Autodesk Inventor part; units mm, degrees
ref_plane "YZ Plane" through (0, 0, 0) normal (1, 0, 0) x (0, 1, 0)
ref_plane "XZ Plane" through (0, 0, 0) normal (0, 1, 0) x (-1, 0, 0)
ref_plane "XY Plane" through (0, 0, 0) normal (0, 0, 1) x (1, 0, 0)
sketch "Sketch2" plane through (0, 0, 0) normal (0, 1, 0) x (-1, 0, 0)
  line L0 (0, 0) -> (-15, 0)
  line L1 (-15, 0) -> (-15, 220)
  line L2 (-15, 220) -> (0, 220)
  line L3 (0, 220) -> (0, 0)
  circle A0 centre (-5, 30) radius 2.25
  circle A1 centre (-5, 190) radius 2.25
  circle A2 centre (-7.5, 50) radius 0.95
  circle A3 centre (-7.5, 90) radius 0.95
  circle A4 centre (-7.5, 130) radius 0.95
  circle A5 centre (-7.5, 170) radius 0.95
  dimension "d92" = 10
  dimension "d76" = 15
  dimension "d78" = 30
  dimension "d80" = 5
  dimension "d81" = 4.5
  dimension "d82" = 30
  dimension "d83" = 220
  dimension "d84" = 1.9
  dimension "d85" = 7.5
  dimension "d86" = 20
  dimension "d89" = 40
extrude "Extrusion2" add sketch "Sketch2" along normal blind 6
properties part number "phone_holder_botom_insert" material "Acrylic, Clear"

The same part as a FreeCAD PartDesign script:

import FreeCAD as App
import Part
import Sketcher

doc = App.newDocument("Part")
params = doc.addObject("Spreadsheet::Sheet", "Params")
for row, (alias, value) in enumerate([
    ("sketch1_diameter", "1.9 mm"),
    ("sketch1_diameter2", "4.5 mm"),
    ("sketch1_width", "15 mm"),
    ("sketch1_height", "220 mm"),
    ("pad1_length", "6 mm"),
], start=1):
    params.set(f"A{row}", alias)
    params.set(f"B{row}", "=" + value)
    params.setAlias(f"B{row}", alias)

body = doc.addObject("PartDesign::Body", "Body")

sketch1 = body.newObject("Sketcher::SketchObject", "Sketch")
sketch1.AttachmentSupport = (doc.getObject("XZ_Plane"), [""])
sketch1.MapMode = "FlatFace"
sketch1.addGeometry([
    Part.LineSegment(App.Vector(15, 0, 0), App.Vector(0, 0, 0)),
    Part.LineSegment(App.Vector(0, 0, 0), App.Vector(0, 220, 0)),
    Part.LineSegment(App.Vector(0, 220, 0), App.Vector(15, 220, 0)),
    Part.LineSegment(App.Vector(15, 220, 0), App.Vector(15, 0, 0)),
    Part.Circle(App.Vector(7.5, 50, 0), App.Vector(0, 0, 1), 0.9),
    Part.Circle(App.Vector(5, 30, 0), App.Vector(0, 0, 1), 2.2),
    Part.Circle(App.Vector(7.5, 90, 0), App.Vector(0, 0, 1), 0.9),
    Part.Circle(App.Vector(7.5, 130, 0), App.Vector(0, 0, 1), 0.9),
    Part.Circle(App.Vector(7.5, 170, 0), App.Vector(0, 0, 1), 0.9),
    Part.Circle(App.Vector(5, 190, 0), App.Vector(0, 0, 1), 2.2),
], False)
sketch1.addConstraint([
    Sketcher.Constraint("Coincident", 0, 2, 1, 1),
    Sketcher.Constraint("Coincident", 1, 2, 2, 1),
    Sketcher.Constraint("Coincident", 2, 2, 3, 1),
    Sketcher.Constraint("Coincident", 3, 2, 0, 1),
    Sketcher.Constraint("Horizontal", 0),
    Sketcher.Constraint("Vertical", 1),
    Sketcher.Constraint("Horizontal", 2),
    Sketcher.Constraint("Vertical", 3),
    Sketcher.Constraint("Coincident", 0, 2, -1, 1),
    Sketcher.Constraint("Equal", 4, 6),
    Sketcher.Constraint("Equal", 6, 7),
    Sketcher.Constraint("Equal", 7, 8),
    Sketcher.Constraint("Equal", 5, 9),
    Sketcher.Constraint("Vertical", 4, 3, 6, 3),
    Sketcher.Constraint("Vertical", 6, 3, 7, 3),
    Sketcher.Constraint("Vertical", 7, 3, 8, 3),
    Sketcher.Constraint("Vertical", 5, 3, 9, 3),
    Sketcher.Constraint("Diameter", 4, 1.9),
    Sketcher.Constraint("Diameter", 5, 4.5),
    Sketcher.Constraint("DistanceX", 0, 2, 0, 1, 15.0),
    Sketcher.Constraint("DistanceY", 1, 1, 1, 2, 220.0),
    Sketcher.Constraint("DistanceX", -1, 1, 5, 3, 5.0),
    Sketcher.Constraint("DistanceY", -1, 1, 5, 3, 30.0),
    Sketcher.Constraint("DistanceY", 5, 3, 4, 3, 20.0),
    Sketcher.Constraint("DistanceY", 4, 3, 6, 3, 40.0),
    Sketcher.Constraint("DistanceY", 6, 3, 7, 3, 40.0),
    Sketcher.Constraint("DistanceY", 7, 3, 8, 3, 40.0),
    Sketcher.Constraint("DistanceY", 8, 3, 9, 3, 20.0),
    Sketcher.Constraint("DistanceX", -1, 1, 4, 3, 7.5),
])
sketch1.setExpression("Constraints[17]", "Params.sketch1_diameter")
sketch1.setExpression("Constraints[18]", "Params.sketch1_diameter2")
sketch1.setExpression("Constraints[19]", "Params.sketch1_width")
sketch1.setExpression("Constraints[20]", "Params.sketch1_height")
pad1 = body.newObject("PartDesign::Pad", "Pad")
pad1.Profile = sketch1
pad1.setExpression("Length", "Params.pad1_length")
pad1.Reversed = True

doc.recompute()
